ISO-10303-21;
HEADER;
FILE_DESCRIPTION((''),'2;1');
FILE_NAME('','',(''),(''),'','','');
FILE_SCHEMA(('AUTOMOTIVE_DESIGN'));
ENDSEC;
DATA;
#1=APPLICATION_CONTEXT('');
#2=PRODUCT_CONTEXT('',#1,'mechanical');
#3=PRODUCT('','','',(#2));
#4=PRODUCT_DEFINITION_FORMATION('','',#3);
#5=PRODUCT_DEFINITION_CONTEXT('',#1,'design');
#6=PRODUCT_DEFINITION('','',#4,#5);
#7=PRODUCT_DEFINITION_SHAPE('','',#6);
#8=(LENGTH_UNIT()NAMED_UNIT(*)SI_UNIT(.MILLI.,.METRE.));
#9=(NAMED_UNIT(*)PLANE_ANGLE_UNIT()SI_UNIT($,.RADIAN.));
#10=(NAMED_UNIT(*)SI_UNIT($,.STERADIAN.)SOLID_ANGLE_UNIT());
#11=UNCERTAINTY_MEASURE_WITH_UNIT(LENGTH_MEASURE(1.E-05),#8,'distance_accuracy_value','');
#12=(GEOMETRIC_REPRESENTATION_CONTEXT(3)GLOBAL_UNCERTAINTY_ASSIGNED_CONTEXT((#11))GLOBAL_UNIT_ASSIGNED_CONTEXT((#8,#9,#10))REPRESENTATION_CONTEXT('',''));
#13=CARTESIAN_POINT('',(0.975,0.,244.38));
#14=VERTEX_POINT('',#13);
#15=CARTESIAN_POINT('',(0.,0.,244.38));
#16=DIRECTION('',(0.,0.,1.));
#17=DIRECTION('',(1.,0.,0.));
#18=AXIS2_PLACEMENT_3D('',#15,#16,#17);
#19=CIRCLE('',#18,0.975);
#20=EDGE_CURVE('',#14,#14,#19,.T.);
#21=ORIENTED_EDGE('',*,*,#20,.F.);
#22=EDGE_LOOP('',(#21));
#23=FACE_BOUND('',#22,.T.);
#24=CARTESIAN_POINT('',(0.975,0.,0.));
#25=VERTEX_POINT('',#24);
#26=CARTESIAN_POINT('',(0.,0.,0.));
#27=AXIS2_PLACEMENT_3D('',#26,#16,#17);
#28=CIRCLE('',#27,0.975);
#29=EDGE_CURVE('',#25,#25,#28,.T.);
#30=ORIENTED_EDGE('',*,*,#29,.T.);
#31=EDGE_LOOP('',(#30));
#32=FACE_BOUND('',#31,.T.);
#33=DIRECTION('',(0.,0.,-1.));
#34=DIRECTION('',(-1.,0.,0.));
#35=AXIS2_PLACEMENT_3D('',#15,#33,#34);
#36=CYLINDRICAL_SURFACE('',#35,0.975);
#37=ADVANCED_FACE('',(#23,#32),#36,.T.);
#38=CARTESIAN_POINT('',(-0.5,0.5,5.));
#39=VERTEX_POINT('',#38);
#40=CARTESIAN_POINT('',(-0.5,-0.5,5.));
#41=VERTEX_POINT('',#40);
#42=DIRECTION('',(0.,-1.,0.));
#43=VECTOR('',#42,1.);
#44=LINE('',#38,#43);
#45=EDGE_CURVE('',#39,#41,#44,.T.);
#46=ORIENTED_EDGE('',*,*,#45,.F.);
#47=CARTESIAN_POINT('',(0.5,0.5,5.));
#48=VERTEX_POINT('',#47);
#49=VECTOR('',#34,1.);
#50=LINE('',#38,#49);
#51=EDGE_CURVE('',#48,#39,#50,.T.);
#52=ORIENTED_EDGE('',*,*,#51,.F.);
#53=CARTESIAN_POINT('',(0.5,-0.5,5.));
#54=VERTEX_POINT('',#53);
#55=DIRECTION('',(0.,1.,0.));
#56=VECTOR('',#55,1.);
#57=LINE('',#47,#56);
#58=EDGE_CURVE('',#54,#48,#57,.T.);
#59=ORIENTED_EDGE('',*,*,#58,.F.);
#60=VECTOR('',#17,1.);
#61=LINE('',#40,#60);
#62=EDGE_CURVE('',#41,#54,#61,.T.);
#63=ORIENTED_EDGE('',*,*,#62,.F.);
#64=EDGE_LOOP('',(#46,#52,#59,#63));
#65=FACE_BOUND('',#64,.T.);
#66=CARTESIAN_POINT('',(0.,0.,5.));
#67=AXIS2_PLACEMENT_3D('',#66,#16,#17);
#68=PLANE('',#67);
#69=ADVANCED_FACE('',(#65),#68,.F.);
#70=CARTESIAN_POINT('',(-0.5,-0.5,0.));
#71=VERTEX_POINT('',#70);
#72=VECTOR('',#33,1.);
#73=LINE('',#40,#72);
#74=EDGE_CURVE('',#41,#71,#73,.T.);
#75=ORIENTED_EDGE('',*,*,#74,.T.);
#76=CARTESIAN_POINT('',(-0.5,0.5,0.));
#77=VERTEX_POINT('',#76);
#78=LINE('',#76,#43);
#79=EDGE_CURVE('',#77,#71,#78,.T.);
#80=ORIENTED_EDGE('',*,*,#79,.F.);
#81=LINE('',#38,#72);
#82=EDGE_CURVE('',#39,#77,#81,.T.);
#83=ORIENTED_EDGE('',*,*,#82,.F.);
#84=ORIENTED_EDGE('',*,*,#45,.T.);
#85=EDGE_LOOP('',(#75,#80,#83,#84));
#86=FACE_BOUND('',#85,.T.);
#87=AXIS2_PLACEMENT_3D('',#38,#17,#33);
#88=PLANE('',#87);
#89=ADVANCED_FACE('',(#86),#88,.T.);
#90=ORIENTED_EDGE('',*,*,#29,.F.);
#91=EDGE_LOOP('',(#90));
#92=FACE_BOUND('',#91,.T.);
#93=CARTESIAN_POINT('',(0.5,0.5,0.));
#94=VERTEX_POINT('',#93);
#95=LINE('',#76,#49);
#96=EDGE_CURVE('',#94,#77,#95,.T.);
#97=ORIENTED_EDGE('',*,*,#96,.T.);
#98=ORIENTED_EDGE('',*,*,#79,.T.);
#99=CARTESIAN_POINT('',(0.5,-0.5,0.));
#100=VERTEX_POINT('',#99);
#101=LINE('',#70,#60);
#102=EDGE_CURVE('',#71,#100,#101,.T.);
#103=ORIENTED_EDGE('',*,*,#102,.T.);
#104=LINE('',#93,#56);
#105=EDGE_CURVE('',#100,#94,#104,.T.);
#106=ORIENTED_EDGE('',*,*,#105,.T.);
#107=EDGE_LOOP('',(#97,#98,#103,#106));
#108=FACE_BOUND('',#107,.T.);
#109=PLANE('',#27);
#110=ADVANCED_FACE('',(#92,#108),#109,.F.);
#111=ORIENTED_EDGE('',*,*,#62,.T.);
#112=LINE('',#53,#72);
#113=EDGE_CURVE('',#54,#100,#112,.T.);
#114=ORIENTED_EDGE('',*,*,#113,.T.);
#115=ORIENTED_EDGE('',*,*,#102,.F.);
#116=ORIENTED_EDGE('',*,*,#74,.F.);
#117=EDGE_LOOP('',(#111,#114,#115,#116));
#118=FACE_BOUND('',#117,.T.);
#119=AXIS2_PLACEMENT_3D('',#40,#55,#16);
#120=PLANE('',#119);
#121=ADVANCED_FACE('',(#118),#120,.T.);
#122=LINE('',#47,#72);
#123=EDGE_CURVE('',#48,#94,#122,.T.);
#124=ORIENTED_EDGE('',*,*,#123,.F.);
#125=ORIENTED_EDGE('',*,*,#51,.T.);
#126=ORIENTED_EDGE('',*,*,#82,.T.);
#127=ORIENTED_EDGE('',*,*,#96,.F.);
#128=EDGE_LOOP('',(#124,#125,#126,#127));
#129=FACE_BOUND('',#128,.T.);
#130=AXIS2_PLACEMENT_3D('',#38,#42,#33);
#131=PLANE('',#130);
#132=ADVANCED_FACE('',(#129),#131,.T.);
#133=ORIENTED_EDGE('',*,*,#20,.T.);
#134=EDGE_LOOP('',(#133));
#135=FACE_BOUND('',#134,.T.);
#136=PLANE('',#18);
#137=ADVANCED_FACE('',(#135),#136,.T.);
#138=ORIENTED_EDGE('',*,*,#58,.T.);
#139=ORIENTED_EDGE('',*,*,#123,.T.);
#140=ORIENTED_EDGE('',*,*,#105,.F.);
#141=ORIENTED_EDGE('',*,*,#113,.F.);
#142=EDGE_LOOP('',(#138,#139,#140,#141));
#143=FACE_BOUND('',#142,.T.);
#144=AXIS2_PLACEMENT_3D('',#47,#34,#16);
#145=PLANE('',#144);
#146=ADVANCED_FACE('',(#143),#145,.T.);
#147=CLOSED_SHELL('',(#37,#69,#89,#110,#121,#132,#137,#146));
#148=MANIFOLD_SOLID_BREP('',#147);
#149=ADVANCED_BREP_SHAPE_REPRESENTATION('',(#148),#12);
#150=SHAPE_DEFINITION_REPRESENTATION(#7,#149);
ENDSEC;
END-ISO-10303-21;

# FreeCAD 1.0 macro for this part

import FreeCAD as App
import Part
import Sketcher

V = App.Vector
Q = App.Units.Quantity


def add_polygon(sketch, points):
    """Adds a closed chain of lines whose ends are joined by coincident constraints."""
    first, n = sketch.GeometryCount, len(points)
    for a, b in zip(points, points[1:] + points[:1]):
        sketch.addGeometry(Part.LineSegment(App.Vector(*a, 0), App.Vector(*b, 0)), False)
    for i in range(n):
        sketch.addConstraint(Sketcher.Constraint("Coincident", first + i, 2, first + (i + 1) % n, 1))

doc = App.newDocument("Part")
body = doc.addObject("PartDesign::Body", "Body")

# Sketch on XY plane
sketch1 = body.newObject("Sketcher::SketchObject", "Sketch")
sketch1.AttachmentSupport = (doc.getObject("XY_Plane"), [""])
sketch1.MapMode = "FlatFace"
sketch1.addGeometry(Part.Circle(V(0, 0, 0), V(0, 0, 1), 0.975), False)
sketch1.addConstraint([
    Sketcher.Constraint("Coincident", 0, 3, -1, 1),
    Sketcher.Constraint("Diameter", 0, Q("1.95 mm")),
])
pad1 = body.newObject("PartDesign::Pad", "Pad")
pad1.Profile = sketch1
pad1.Length = 244.38

# Sketch on XY plane
sketch2 = body.newObject("Sketcher::SketchObject", "Sketch001")
sketch2.AttachmentSupport = (doc.getObject("XY_Plane"), [""])
sketch2.MapMode = "FlatFace"
add_polygon(sketch2, [(-0.5, 0.5), (-0.5, -0.5), (0.5, -0.5), (0.5, 0.5)])  # lines 0-3
sketch2.addConstraint([
    Sketcher.Constraint("Vertical", 0),
    Sketcher.Constraint("Horizontal", 1),
    Sketcher.Constraint("Vertical", 2),
    Sketcher.Constraint("Horizontal", 3),
    Sketcher.Constraint("Symmetric", 0, 2, 2, 2, -1, 1),
    Sketcher.Constraint("Equal", 3, 0),
    Sketcher.Constraint("DistanceX", 1, 1, 1, 2, Q("1 mm")),
])
pocket1 = body.newObject("PartDesign::Pocket", "Pocket")
pocket1.Profile = sketch2
pocket1.Length = 5
pocket1.Reversed = True

doc.recompute()
